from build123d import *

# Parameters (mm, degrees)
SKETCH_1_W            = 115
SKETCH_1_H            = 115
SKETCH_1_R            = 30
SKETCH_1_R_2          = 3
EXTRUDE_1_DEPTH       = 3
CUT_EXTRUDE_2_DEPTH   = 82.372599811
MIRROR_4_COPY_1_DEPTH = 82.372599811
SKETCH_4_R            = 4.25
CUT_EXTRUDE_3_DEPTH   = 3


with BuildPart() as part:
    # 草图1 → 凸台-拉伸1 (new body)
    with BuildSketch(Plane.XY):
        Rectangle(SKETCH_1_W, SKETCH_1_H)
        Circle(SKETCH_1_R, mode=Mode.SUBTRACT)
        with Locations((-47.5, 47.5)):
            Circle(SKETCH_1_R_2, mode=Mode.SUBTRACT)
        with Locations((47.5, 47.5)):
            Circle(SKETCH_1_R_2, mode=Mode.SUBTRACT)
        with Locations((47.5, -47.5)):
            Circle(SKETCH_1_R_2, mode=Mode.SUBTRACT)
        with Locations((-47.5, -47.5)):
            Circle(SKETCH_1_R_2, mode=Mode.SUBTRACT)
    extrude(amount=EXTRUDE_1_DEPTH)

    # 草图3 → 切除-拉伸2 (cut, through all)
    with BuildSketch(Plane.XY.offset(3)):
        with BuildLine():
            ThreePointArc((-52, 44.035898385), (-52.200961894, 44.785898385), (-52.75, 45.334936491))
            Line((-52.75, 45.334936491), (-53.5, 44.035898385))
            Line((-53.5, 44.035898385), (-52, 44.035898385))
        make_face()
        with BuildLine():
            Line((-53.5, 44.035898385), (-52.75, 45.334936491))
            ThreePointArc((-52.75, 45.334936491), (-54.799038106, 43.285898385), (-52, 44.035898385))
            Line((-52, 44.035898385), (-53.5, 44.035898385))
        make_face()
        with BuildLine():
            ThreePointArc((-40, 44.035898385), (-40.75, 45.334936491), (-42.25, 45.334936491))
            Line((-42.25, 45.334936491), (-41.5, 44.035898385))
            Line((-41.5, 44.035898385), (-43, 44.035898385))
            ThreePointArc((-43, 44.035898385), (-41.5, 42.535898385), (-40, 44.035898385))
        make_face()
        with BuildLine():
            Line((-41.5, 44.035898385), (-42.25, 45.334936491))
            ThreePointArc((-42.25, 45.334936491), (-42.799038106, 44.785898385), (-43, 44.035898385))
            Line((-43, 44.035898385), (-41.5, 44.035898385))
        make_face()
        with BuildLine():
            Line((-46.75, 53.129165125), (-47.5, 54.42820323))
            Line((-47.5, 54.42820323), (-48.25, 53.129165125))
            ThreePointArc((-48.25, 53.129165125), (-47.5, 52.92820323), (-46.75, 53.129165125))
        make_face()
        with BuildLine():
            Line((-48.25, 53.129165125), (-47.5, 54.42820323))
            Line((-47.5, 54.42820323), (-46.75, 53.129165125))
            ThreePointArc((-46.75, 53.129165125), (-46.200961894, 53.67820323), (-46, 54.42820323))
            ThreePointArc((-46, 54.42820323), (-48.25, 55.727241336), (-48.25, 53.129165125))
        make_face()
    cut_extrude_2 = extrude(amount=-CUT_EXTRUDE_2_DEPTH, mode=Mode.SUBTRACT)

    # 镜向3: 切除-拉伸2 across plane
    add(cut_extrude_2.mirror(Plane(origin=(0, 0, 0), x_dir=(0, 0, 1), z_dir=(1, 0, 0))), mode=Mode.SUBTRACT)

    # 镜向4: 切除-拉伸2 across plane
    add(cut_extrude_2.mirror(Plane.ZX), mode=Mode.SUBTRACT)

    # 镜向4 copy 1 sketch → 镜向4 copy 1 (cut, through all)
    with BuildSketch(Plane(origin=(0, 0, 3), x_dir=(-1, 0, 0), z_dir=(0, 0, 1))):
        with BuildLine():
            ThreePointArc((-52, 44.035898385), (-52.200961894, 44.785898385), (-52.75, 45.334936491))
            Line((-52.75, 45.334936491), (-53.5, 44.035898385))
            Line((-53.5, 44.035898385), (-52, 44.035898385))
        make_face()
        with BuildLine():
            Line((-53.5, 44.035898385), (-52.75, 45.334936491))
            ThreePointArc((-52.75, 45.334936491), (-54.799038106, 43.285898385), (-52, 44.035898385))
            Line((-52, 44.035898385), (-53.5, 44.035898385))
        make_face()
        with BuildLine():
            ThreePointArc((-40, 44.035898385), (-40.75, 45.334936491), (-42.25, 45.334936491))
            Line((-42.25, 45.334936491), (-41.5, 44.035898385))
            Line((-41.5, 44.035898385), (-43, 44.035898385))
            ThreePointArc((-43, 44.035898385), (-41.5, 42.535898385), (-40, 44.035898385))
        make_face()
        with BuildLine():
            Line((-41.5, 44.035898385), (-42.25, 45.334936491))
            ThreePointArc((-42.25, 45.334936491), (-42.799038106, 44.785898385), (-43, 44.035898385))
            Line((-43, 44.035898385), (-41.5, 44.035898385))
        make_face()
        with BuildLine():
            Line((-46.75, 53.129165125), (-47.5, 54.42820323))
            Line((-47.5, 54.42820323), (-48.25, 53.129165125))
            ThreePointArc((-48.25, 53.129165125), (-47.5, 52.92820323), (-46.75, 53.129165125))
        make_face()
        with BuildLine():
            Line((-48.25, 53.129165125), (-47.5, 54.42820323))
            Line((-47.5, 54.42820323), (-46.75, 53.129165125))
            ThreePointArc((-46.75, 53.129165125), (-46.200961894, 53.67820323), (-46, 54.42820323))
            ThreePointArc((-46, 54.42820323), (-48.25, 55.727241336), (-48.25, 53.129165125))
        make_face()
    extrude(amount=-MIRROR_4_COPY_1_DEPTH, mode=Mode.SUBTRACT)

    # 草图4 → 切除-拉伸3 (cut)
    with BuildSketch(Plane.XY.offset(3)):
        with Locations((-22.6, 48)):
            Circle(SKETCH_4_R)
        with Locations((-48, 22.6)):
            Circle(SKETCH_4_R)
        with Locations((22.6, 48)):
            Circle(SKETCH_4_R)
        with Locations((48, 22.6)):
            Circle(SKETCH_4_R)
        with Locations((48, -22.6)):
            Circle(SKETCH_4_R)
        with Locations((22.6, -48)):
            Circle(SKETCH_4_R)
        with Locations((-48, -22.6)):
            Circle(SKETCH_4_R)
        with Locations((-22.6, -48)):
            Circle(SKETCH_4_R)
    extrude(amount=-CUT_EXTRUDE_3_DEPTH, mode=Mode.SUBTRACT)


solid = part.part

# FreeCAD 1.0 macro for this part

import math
import FreeCAD as App
import Part
import Sketcher
from FreeCAD import Vector
Q = App.Units.Quantity

doc = App.newDocument("Part")
body = doc.addObject("PartDesign::Body", "Body")

# Sketch on XY plane
sketch1 = doc.addObject("Sketcher::SketchObject", "Sketch")
body.addObject(sketch1)
sketch1.AttachmentSupport = (doc.XY_Plane, [""])
sketch1.MapMode = "FlatFace"
sketch1.addGeometry([
    Part.LineSegment(Vector(-57.5, 57.5, 0), Vector(-57.5, -57.5, 0)),  # 0
    Part.LineSegment(Vector(-57.5, -57.5, 0), Vector(57.5, -57.5, 0)),  # 1
    Part.LineSegment(Vector(57.5, -57.5, 0), Vector(57.5, 57.5, 0)),  # 2
    Part.LineSegment(Vector(57.5, 57.5, 0), Vector(-57.5, 57.5, 0)),  # 3
    Part.Circle(Vector(-47.5, -47.5, 0), Vector(0, 0, 1), 3),  # 4
    Part.Circle(Vector(47.5, -47.5, 0), Vector(0, 0, 1), 3),  # 5
    Part.Circle(Vector(-47.5, 47.5, 0), Vector(0, 0, 1), 3),  # 6
    Part.Circle(Vector(0, 0, 0), Vector(0, 0, 1), 30),  # 7
    Part.Circle(Vector(47.5, 47.5, 0), Vector(0, 0, 1), 3),  # 8
], False)
sketch1.addConstraint([
    Sketcher.Constraint("Coincident", 0, 2, 1, 1),
    Sketcher.Constraint("Coincident", 1, 2, 2, 1),
    Sketcher.Constraint("Coincident", 2, 2, 3, 1),
    Sketcher.Constraint("Coincident", 3, 2, 0, 1),
    Sketcher.Constraint("Vertical", 0),
    Sketcher.Constraint("Horizontal", 1),
    Sketcher.Constraint("Vertical", 2),
    Sketcher.Constraint("Horizontal", 3),
    Sketcher.Constraint("Coincident", 7, 3, -1, 1),
    Sketcher.Constraint("Equal", 4, 5),
    Sketcher.Constraint("Equal", 5, 6),
    Sketcher.Constraint("Equal", 6, 8),
    Sketcher.Constraint("Symmetric", 5, 3, 6, 3, -1, 1),
    Sketcher.Constraint("Symmetric", 4, 3, 8, 3, -1, 1),
    Sketcher.Constraint("Symmetric", 0, 2, 2, 2, -1, 1),
    Sketcher.Constraint("Symmetric", 4, 3, 5, 3, -2),
    Sketcher.Constraint("Equal", 3, 0),
    Sketcher.Constraint("Diameter", 4, Q("6 mm")),
    Sketcher.Constraint("Diameter", 7, Q("60 mm")),
    Sketcher.Constraint("DistanceX", 1, 1, 1, 2, Q("115 mm")),
    Sketcher.Constraint("DistanceX", 4, 3, 5, 3, Q("95 mm")),
    Sketcher.Constraint("DistanceY", 4, 3, 6, 3, Q("95 mm")),
])
pad1 = doc.addObject("PartDesign::Pad", "Pad")
body.addObject(pad1)
pad1.Profile = sketch1
pad1.Length = 3

# Sketch on XY plane
sketch2 = doc.addObject("Sketcher::SketchObject", "Sketch001")
body.addObject(sketch2)
sketch2.AttachmentSupport = (doc.XY_Plane, [""])
sketch2.MapMode = "FlatFace"
sketch2.AttachmentOffset = App.Placement(Vector(0, 0, 3), App.Rotation())
sketch2.addGeometry([
    Part.ArcOfCircle(Part.Circle(Vector(-53.5, 44, 0), Vector(0, 0, 1), 1.5), math.radians(0), math.radians(60)),  # 0
    Part.ArcOfCircle(Part.Circle(Vector(-53.5, 44, 0), Vector(0, 0, 1), 1.5), math.radians(60), math.radians(360)),  # 1
    Part.ArcOfCircle(Part.Circle(Vector(-41.5, 44, 0), Vector(0, 0, 1), 1.5), math.radians(0), math.radians(120)),  # 2
    Part.ArcOfCircle(Part.Circle(Vector(-41.5, 44, 0), Vector(0, 0, 1), 1.5), math.radians(120), math.radians(180)),  # 3
    Part.ArcOfCircle(Part.Circle(Vector(-41.5, 44, 0), Vector(0, 0, 1), 1.5), math.radians(180), math.radians(360)),  # 4
    Part.ArcOfCircle(Part.Circle(Vector(-47.5, 54.4, 0), Vector(0, 0, 1), 1.5), math.radians(-120), math.radians(-60)),  # 5
    Part.ArcOfCircle(Part.Circle(Vector(-47.5, 54.4, 0), Vector(0, 0, 1), 1.5), math.radians(-60), math.radians(0)),  # 6
    Part.ArcOfCircle(Part.Circle(Vector(-47.5, 54.4, 0), Vector(0, 0, 1), 1.5), math.radians(0), math.radians(240)),  # 7
], False)
sketch2.addConstraint([
    Sketcher.Constraint("Tangent", 0, 1, 1, 2),
    Sketcher.Constraint("Coincident", 1, 1, 0, 2),
    Sketcher.Constraint("Tangent", 2, 2, 3, 1),
    Sketcher.Constraint("Tangent", 3, 2, 4, 1),
    Sketcher.Constraint("Tangent", 4, 2, 2, 1),
    Sketcher.Constraint("Tangent", 5, 2, 6, 1),
    Sketcher.Constraint("Tangent", 6, 2, 7, 1),
    Sketcher.Constraint("Tangent", 7, 2, 5, 1),
    Sketcher.Constraint("Equal", 1, 2),
    Sketcher.Constraint("Equal", 4, 5),
    Sketcher.Constraint("Horizontal", 1, 3, 2, 3),
    Sketcher.Constraint("Horizontal", 4, 3, 0, 1),
    Sketcher.Constraint("Horizontal", 1, 1, 2, 2),
    Sketcher.Constraint("Horizontal", 0, 1, 3, 2),
    Sketcher.Constraint("Horizontal", 3, 2, 4, 2),
    Sketcher.Constraint("Horizontal", 7, 3, 6, 2),
    Sketcher.Constraint("Horizontal", 5, 2, 7, 2),
    Sketcher.Constraint("Radius", 0, Q("1.5 mm")),
    Sketcher.Constraint("DistanceX", 0, 1, -1, 1, Q("52 mm")),
    Sketcher.Constraint("DistanceX", 3, 2, -1, 1, Q("43 mm")),
    Sketcher.Constraint("DistanceX", 6, 2, -1, 1, Q("46 mm")),
    Sketcher.Constraint("DistanceX", 5, 2, 2, 2, Q("4.5 mm")),
    Sketcher.Constraint("DistanceX", 7, 2, 5, 2, Q("1.5 mm")),
    Sketcher.Constraint("DistanceY", -1, 1, 0, 3, Q("44.035898 mm")),
    Sketcher.Constraint("DistanceY", 2, 2, 5, 2, Q("7.794229 mm")),
])
pocket1 = doc.addObject("PartDesign::Pocket", "Pocket")
body.addObject(pocket1)
pocket1.Profile = sketch2
pocket1.Type = "ThroughAll"
doc.recompute()

mirrored = doc.addObject("PartDesign::Mirrored", "Mirrored")
body.addObject(mirrored)
mirrored.Originals = [pocket1]
mirrored.MirrorPlane = (doc.YZ_Plane, [""])
body.Tip = mirrored
doc.recompute()

mirrored2 = doc.addObject("PartDesign::Mirrored", "Mirrored001")
body.addObject(mirrored2)
mirrored2.Originals = [pocket1]
mirrored2.MirrorPlane = (doc.XZ_Plane, [""])
body.Tip = mirrored2

# Sketch on XY plane
sketch3 = doc.addObject("Sketcher::SketchObject", "Sketch002")
body.addObject(sketch3)
sketch3.AttachmentSupport = (doc.XY_Plane, [""])
sketch3.MapMode = "FlatFace"
sketch3.AttachmentOffset = App.Placement(Vector(0, 0, 3), App.Rotation())
sketch3.addGeometry([
    Part.ArcOfCircle(Part.Circle(Vector(53.5, -44, 0), Vector(0, 0, 1), 1.5), math.radians(180), math.radians(240)),  # 0
    Part.ArcOfCircle(Part.Circle(Vector(53.5, -44, 0), Vector(0, 0, 1), 1.5), math.radians(-120), math.radians(180)),  # 1
    Part.ArcOfCircle(Part.Circle(Vector(41.5, -44, 0), Vector(0, 0, 1), 1.5), math.radians(180), math.radians(300)),  # 2
    Part.ArcOfCircle(Part.Circle(Vector(41.5, -44, 0), Vector(0, 0, 1), 1.5), math.radians(-60), math.radians(0)),  # 3
    Part.ArcOfCircle(Part.Circle(Vector(41.5, -44, 0), Vector(0, 0, 1), 1.5), math.radians(0), math.radians(180)),  # 4
    Part.ArcOfCircle(Part.Circle(Vector(47.5, -54.4, 0), Vector(0, 0, 1), 1.5), math.radians(60), math.radians(120)),  # 5
    Part.ArcOfCircle(Part.Circle(Vector(47.5, -54.4, 0), Vector(0, 0, 1), 1.5), math.radians(120), math.radians(180)),  # 6
    Part.ArcOfCircle(Part.Circle(Vector(47.5, -54.4, 0), Vector(0, 0, 1), 1.5), math.radians(180), math.radians(420)),  # 7
], False)
sketch3.addConstraint([
    Sketcher.Constraint("Tangent", 0, 1, 1, 2),
    Sketcher.Constraint("Coincident", 1, 1, 0, 2),
    Sketcher.Constraint("Tangent", 2, 2, 3, 1),
    Sketcher.Constraint("Tangent", 3, 2, 4, 1),
    Sketcher.Constraint("Tangent", 4, 2, 2, 1),
    Sketcher.Constraint("Tangent", 5, 2, 6, 1),
    Sketcher.Constraint("Tangent", 6, 2, 7, 1),
    Sketcher.Constraint("Tangent", 7, 2, 5, 1),
    Sketcher.Constraint("Equal", 1, 2),
    Sketcher.Constraint("Equal", 4, 5),
    Sketcher.Constraint("Horizontal", 1, 3, 2, 3),
    Sketcher.Constraint("Horizontal", 4, 3, 0, 1),
    Sketcher.Constraint("Horizontal", 1, 1, 2, 2),
    Sketcher.Constraint("Horizontal", 0, 1, 3, 2),
    Sketcher.Constraint("Horizontal", 3, 2, 4, 2),
    Sketcher.Constraint("Horizontal", 7, 3, 6, 2),
    Sketcher.Constraint("Horizontal", 5, 2, 7, 2),
    Sketcher.Constraint("Radius", 0, Q("1.5 mm")),
    Sketcher.Constraint("DistanceX", -1, 1, 0, 1, Q("52 mm")),
    Sketcher.Constraint("DistanceX", -1, 1, 3, 2, Q("43 mm")),
    Sketcher.Constraint("DistanceX", -1, 1, 6, 2, Q("46 mm")),
    Sketcher.Constraint("DistanceX", 2, 2, 5, 2, Q("4.5 mm")),
    Sketcher.Constraint("DistanceX", 5, 2, 7, 2, Q("1.5 mm")),
    Sketcher.Constraint("DistanceY", 0, 3, -1, 1, Q("44.035898 mm")),
    Sketcher.Constraint("DistanceY", 5, 2, 2, 2, Q("7.794229 mm")),
])
pocket2 = doc.addObject("PartDesign::Pocket", "Pocket001")
body.addObject(pocket2)
pocket2.Profile = sketch3
pocket2.Type = "ThroughAll"

# Sketch on XY plane
sketch4 = doc.addObject("Sketcher::SketchObject", "Sketch003")
body.addObject(sketch4)
sketch4.AttachmentSupport = (doc.XY_Plane, [""])
sketch4.MapMode = "FlatFace"
sketch4.AttachmentOffset = App.Placement(Vector(0, 0, 3), App.Rotation())
sketch4.addGeometry([
    Part.Circle(Vector(-22.6, 48, 0), Vector(0, 0, 1), 4.2),  # 0
    Part.Circle(Vector(-48, 22.6, 0), Vector(0, 0, 1), 4.2),  # 1
    Part.Circle(Vector(22.6, 48, 0), Vector(0, 0, 1), 4.2),  # 2
    Part.Circle(Vector(48, 22.6, 0), Vector(0, 0, 1), 4.2),  # 3
    Part.Circle(Vector(48, -22.6, 0), Vector(0, 0, 1), 4.2),  # 4
    Part.Circle(Vector(22.6, -48, 0), Vector(0, 0, 1), 4.2),  # 5
    Part.Circle(Vector(-48, -22.6, 0), Vector(0, 0, 1), 4.2),  # 6
    Part.Circle(Vector(-22.6, -48, 0), Vector(0, 0, 1), 4.2),  # 7
], False)
sketch4.addConstraint([
    Sketcher.Constraint("Equal", 0, 1),
    Sketcher.Constraint("Equal", 1, 2),
    Sketcher.Constraint("Equal", 2, 3),
    Sketcher.Constraint("Equal", 3, 4),
    Sketcher.Constraint("Equal", 4, 5),
    Sketcher.Constraint("Equal", 5, 6),
    Sketcher.Constraint("Equal", 6, 7),
    Sketcher.Constraint("Symmetric", 1, 3, 4, 3, -1, 1),
    Sketcher.Constraint("Symmetric", 0, 3, 5, 3, -1, 1),
    Sketcher.Constraint("Symmetric", 3, 3, 6, 3, -1, 1),
    Sketcher.Constraint("Symmetric", 2, 3, 7, 3, -1, 1),
    Sketcher.Constraint("Symmetric", 0, 3, 2, 3, -2),
    Sketcher.Constraint("Symmetric", 1, 3, 3, 3, -2),
    Sketcher.Constraint("Diameter", 0, Q("8.5 mm")),
    Sketcher.Constraint("DistanceY", -1, 1, 0, 3, Q("48 mm")),
    Sketcher.Constraint("DistanceX", 1, 3, -1, 1, Q("48 mm")),
    Sketcher.Constraint("DistanceX", 0, 3, -1, 1, Q("22.6 mm")),
    Sketcher.Constraint("DistanceY", -1, 1, 1, 3, Q("22.6 mm")),
])
pocket3 = doc.addObject("PartDesign::Pocket", "Pocket002")
body.addObject(pocket3)
pocket3.Profile = sketch4
pocket3.Length = 3

doc.recompute()
